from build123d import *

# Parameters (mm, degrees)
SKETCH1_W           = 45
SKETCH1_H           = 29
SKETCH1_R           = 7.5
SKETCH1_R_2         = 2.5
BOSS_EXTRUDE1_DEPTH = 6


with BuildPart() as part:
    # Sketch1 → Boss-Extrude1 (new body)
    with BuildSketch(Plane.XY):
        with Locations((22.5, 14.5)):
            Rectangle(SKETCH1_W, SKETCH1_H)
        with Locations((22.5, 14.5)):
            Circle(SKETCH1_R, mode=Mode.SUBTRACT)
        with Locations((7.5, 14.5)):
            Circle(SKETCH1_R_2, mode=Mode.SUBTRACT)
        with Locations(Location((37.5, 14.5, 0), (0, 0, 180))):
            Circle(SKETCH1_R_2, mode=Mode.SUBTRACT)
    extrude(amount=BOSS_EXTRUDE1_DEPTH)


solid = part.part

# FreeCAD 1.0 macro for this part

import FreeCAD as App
import Part
import Sketcher
from FreeCAD import Vector
Q = App.Units.Quantity

doc = App.newDocument("Part")
body = doc.addObject("PartDesign::Body", "Body")

# Sketch on XY plane
sketch1 = doc.addObject("Sketcher::SketchObject", "Sketch")
body.addObject(sketch1)
sketch1.AttachmentSupport = (doc.XY_Plane, [""])
sketch1.MapMode = "FlatFace"
sketch1.addGeometry([
    Part.LineSegment(Vector(0, 29, 0), Vector(0, 0, 0)),  # 0
    Part.LineSegment(Vector(0, 0, 0), Vector(45, 0, 0)),  # 1
    Part.LineSegment(Vector(45, 0, 0), Vector(45, 29, 0)),  # 2
    Part.LineSegment(Vector(45, 29, 0), Vector(0, 29, 0)),  # 3
    Part.Circle(Vector(7.5, 14.5, 0), Vector(0, 0, 1), 2.5),  # 4
    Part.Circle(Vector(22.5, 14.5, 0), Vector(0, 0, 1), 7.5),  # 5
    Part.Circle(Vector(37.5, 14.5, 0), Vector(0, 0, 1), 2.5),  # 6
], False)
sketch1.addConstraint([
    Sketcher.Constraint("Coincident", 0, 2, 1, 1),
    Sketcher.Constraint("Coincident", 1, 2, 2, 1),
    Sketcher.Constraint("Coincident", 2, 2, 3, 1),
    Sketcher.Constraint("Coincident", 3, 2, 0, 1),
    Sketcher.Constraint("Vertical", 0),
    Sketcher.Constraint("Horizontal", 1),
    Sketcher.Constraint("Vertical", 2),
    Sketcher.Constraint("Horizontal", 3),
    Sketcher.Constraint("Coincident", 0, 2, -1, 1),
    Sketcher.Constraint("Equal", 4, 6),
    Sketcher.Constraint("Horizontal", 4, 3, 5, 3),
    Sketcher.Constraint("Horizontal", 5, 3, 6, 3),
    Sketcher.Constraint("Diameter", 4, Q("5 mm")),
    Sketcher.Constraint("Diameter", 5, Q("15 mm")),
    Sketcher.Constraint("DistanceX", 1, 1, 1, 2, Q("45 mm")),
    Sketcher.Constraint("DistanceY", 0, 2, 0, 1, Q("29 mm")),
    Sketcher.Constraint("DistanceX", 4, 3, 5, 3, Q("15 mm")),
    Sketcher.Constraint("DistanceX", 5, 3, 6, 3, Q("15 mm")),
    Sketcher.Constraint("DistanceX", -1, 1, 4, 3, Q("7.5 mm")),
    Sketcher.Constraint("DistanceY", -1, 1, 4, 3, Q("14.5 mm")),
])
pad1 = doc.addObject("PartDesign::Pad", "Pad")
body.addObject(pad1)
pad1.Profile = sketch1
pad1.Length = 6

doc.recompute()
